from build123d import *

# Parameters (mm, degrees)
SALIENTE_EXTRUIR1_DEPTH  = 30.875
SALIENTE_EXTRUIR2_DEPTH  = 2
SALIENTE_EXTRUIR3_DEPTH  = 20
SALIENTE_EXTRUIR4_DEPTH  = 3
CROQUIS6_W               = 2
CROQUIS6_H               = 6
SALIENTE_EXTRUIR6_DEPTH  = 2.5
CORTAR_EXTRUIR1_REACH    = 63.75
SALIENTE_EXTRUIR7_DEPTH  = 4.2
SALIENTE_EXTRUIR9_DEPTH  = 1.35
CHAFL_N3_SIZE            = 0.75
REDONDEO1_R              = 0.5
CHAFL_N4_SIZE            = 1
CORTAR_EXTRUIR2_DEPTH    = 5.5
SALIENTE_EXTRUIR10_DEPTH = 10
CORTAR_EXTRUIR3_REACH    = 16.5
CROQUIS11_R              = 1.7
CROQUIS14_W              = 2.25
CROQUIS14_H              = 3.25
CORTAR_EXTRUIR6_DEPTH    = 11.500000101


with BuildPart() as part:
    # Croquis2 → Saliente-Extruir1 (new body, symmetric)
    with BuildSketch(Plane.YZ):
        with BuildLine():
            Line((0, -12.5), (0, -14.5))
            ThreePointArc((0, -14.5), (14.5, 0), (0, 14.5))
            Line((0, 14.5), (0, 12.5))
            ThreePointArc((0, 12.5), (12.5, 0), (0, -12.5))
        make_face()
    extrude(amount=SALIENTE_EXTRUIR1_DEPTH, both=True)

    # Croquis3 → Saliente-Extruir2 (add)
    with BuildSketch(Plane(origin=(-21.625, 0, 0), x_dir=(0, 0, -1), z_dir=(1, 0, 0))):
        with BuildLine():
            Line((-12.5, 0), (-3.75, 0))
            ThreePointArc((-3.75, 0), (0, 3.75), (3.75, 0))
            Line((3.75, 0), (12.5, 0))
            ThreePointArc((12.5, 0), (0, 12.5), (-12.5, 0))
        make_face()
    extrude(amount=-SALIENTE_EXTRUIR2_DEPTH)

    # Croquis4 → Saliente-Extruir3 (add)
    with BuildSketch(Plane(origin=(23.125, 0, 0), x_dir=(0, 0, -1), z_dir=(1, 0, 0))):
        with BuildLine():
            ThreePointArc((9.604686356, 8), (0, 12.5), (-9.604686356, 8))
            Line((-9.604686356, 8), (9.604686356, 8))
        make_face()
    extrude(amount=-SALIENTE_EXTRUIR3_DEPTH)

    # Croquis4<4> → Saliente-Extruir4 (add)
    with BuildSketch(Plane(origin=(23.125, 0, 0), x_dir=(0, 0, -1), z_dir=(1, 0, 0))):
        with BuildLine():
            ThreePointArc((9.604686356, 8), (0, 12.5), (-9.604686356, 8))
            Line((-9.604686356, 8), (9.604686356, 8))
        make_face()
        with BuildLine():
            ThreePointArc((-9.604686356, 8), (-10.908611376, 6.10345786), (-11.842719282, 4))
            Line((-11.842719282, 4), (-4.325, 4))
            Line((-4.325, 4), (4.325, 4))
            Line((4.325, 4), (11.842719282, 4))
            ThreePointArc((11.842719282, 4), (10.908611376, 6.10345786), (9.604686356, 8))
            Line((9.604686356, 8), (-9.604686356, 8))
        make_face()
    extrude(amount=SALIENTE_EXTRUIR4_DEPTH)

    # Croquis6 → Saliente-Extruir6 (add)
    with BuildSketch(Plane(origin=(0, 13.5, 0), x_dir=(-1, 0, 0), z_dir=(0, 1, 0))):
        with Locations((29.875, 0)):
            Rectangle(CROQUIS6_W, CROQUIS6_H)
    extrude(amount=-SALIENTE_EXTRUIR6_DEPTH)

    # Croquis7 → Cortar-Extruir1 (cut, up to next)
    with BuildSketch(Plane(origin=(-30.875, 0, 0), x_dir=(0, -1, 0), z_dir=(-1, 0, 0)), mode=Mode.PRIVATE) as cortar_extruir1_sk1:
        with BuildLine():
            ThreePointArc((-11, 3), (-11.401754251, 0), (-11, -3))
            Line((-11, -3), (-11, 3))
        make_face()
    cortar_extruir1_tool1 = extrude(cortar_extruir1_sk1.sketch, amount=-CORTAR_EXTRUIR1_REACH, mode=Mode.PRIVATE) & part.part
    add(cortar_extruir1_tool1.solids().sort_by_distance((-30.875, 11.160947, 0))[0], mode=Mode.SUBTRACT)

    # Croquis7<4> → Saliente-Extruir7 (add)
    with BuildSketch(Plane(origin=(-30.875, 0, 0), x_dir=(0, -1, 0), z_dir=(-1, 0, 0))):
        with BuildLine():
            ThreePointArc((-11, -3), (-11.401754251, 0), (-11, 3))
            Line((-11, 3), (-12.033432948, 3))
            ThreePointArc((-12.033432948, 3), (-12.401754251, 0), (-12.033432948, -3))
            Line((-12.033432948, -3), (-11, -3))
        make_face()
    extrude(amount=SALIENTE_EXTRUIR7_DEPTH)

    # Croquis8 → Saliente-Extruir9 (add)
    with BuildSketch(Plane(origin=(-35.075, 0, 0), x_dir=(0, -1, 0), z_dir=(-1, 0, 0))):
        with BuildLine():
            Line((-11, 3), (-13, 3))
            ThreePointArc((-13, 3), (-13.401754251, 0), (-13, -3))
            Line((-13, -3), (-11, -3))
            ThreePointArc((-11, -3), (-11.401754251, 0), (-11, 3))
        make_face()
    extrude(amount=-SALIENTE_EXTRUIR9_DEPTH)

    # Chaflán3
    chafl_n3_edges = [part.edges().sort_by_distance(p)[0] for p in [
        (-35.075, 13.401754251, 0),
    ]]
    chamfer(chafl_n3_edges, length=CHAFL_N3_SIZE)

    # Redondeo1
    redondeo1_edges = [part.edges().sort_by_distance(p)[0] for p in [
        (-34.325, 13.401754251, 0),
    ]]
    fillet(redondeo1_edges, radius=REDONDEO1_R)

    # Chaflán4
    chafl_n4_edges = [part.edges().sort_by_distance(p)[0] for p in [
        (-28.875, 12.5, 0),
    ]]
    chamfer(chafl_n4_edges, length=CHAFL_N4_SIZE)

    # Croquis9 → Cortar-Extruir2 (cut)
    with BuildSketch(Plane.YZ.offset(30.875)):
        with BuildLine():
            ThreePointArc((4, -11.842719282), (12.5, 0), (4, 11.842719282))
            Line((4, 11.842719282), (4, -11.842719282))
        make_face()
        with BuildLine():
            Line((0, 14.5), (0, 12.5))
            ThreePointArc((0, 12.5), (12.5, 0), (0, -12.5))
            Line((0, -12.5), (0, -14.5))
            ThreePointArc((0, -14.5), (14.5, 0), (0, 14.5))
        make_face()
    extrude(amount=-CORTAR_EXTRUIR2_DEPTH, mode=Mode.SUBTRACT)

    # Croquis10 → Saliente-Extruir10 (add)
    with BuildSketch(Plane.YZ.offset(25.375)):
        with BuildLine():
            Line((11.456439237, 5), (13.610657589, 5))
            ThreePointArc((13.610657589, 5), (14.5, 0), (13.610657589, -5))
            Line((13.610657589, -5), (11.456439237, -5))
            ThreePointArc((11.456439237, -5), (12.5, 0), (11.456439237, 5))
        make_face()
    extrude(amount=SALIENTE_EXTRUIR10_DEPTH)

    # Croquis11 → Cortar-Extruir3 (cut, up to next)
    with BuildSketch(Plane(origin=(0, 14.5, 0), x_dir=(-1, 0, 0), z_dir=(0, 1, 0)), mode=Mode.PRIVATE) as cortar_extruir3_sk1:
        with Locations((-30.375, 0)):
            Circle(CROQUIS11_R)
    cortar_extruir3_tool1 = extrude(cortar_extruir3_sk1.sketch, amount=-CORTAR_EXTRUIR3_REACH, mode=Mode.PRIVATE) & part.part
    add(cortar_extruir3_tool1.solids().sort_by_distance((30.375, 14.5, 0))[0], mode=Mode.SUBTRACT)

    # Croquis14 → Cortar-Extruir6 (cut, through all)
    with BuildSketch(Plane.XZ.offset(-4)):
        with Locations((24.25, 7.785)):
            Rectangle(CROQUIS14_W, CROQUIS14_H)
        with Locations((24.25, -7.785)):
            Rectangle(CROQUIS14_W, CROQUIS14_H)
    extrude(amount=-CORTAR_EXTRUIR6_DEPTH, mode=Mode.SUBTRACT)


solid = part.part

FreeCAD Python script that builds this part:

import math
import FreeCAD as App
import Part
import Sketcher
from FreeCAD import Vector


def edges_at(feature, points):
    """Names of the edges that pass closest to the given points."""
    edges = feature.Shape.Edges
    near = lambda p: min(range(len(edges)), key=lambda i: edges[i].distToShape(Part.Vertex(*p))[0])
    return sorted({f"Edge{near(p) + 1}" for p in points})


def add_polygon(sketch, points):
    """Adds a closed chain of lines whose ends are joined by coincident constraints."""
    first, n = sketch.GeometryCount, len(points)
    for a, b in zip(points, points[1:] + points[:1]):
        sketch.addGeometry(Part.LineSegment(App.Vector(*a, 0), App.Vector(*b, 0)), False)
    for i in range(n):
        sketch.addConstraint(Sketcher.Constraint("Coincident", first + i, 2, first + (i + 1) % n, 1))

doc = App.newDocument("Part")
body = doc.addObject("PartDesign::Body", "Body")

sketch1 = doc.addObject("Sketcher::SketchObject", "Sketch")
body.addObject(sketch1)
sketch1.AttachmentSupport = (doc.YZ_Plane, [""])
sketch1.MapMode = "FlatFace"
sketch1.addGeometry(Part.LineSegment(Vector(0, -12.5, 0), Vector(0, -14.5, 0)), False)
sketch1.addGeometry(Part.ArcOfCircle(Part.Circle(Vector(0, 0, 0), Vector(0, 0, 1), 14.5), math.radians(-90), math.radians(90)), False)
sketch1.addGeometry(Part.LineSegment(Vector(0, 14.5, 0), Vector(0, 12.5, 0)), False)
sketch1.addGeometry(Part.ArcOfCircle(Part.Circle(Vector(0, 0, 0), Vector(0, 0, 1), 12.5), math.radians(-90), math.radians(90)), False)
sketch1.addConstraint(Sketcher.Constraint("Coincident", 0, 2, 1, 1))
sketch1.addConstraint(Sketcher.Constraint("Coincident", 1, 2, 2, 1))
sketch1.addConstraint(Sketcher.Constraint("Coincident", 2, 2, 3, 2))
sketch1.addConstraint(Sketcher.Constraint("Coincident", 3, 1, 0, 1))
sketch1.addConstraint(Sketcher.Constraint("Vertical", 0))
sketch1.addConstraint(Sketcher.Constraint("Vertical", 2))
sketch1.addConstraint(Sketcher.Constraint("Coincident", 1, 3, -1, 1))
sketch1.addConstraint(Sketcher.Constraint("Coincident", 3, 3, -1, 1))
sketch1.addConstraint(Sketcher.Constraint("PointOnObject", 0, 2, -2))
sketch1.addConstraint(Sketcher.Constraint("PointOnObject", 1, 2, -2))
sketch1.addConstraint(Sketcher.Constraint("Radius", 1, 14.5))
sketch1.addConstraint(Sketcher.Constraint("Radius", 3, 12.5))
pad1 = doc.addObject("PartDesign::Pad", "Pad")
body.addObject(pad1)
pad1.Profile = sketch1
pad1.Length = 61.75
pad1.Midplane = True

sketch2 = doc.addObject("Sketcher::SketchObject", "Sketch001")
body.addObject(sketch2)
sketch2.AttachmentSupport = (doc.YZ_Plane, [""])
sketch2.MapMode = "FlatFace"
sketch2.AttachmentOffset = App.Placement(Vector(0, 0, -21.625), App.Rotation())
sketch2.addGeometry(Part.LineSegment(Vector(0, 12.5, 0), Vector(0, 3.8, 0)), False)
sketch2.addGeometry(Part.ArcOfCircle(Part.Circle(Vector(0, 0, 0), Vector(0, 0, 1), 3.8), math.radians(-90), math.radians(90)), False)
sketch2.addGeometry(Part.LineSegment(Vector(0, -3.8, 0), Vector(0, -12.5, 0)), False)
sketch2.addGeometry(Part.ArcOfCircle(Part.Circle(Vector(0, 0, 0), Vector(0, 0, 1), 12.5), math.radians(-90), math.radians(90)), False)
sketch2.addConstraint(Sketcher.Constraint("Coincident", 0, 2, 1, 2))
sketch2.addConstraint(Sketcher.Constraint("Coincident", 1, 1, 2, 1))
sketch2.addConstraint(Sketcher.Constraint("Coincident", 2, 2, 3, 1))
sketch2.addConstraint(Sketcher.Constraint("Coincident", 3, 2, 0, 1))
sketch2.addConstraint(Sketcher.Constraint("Vertical", 0))
sketch2.addConstraint(Sketcher.Constraint("Vertical", 2))
sketch2.addConstraint(Sketcher.Constraint("Coincident", 1, 3, -1, 1))
sketch2.addConstraint(Sketcher.Constraint("Coincident", 3, 3, -1, 1))
sketch2.addConstraint(Sketcher.Constraint("PointOnObject", 0, 2, -2))
sketch2.addConstraint(Sketcher.Constraint("PointOnObject", 1, 1, -2))
sketch2.addConstraint(Sketcher.Constraint("Radius", 3, 12.5))
sketch2.addConstraint(Sketcher.Constraint("Radius", 1, 3.75))
pad2 = doc.addObject("PartDesign::Pad", "Pad001")
body.addObject(pad2)
pad2.Profile = sketch2
pad2.Length = 2
pad2.Reversed = True

sketch3 = doc.addObject("Sketcher::SketchObject", "Sketch002")
body.addObject(sketch3)
sketch3.AttachmentSupport = (doc.YZ_Plane, [""])
sketch3.MapMode = "FlatFace"
sketch3.AttachmentOffset = App.Placement(Vector(0, 0, 23.125), App.Rotation())
sketch3.addGeometry(Part.ArcOfCircle(Part.Circle(Vector(0, 0, 0), Vector(0, 0, 1), 12), math.radians(-50), math.radians(50)), False)
sketch3.addGeometry(Part.LineSegment(Vector(8, 10, 0), Vector(8, -10, 0)), False)
sketch3.addConstraint(Sketcher.Constraint("Coincident", 0, 1, 1, 2))
sketch3.addConstraint(Sketcher.Constraint("Coincident", 1, 1, 0, 2))
sketch3.addConstraint(Sketcher.Constraint("Vertical", 1))
sketch3.addConstraint(Sketcher.Constraint("Coincident", 0, 3, -1, 1))
sketch3.addConstraint(Sketcher.Constraint("Radius", 0, 12.5))
sketch3.addConstraint(Sketcher.Constraint("DistanceX", -1, 1, 0, 1, 8.0))
pad3 = doc.addObject("PartDesign::Pad", "Pad002")
body.addObject(pad3)
pad3.Profile = sketch3
pad3.Length = 20
pad3.Reversed = True

sketch4 = doc.addObject("Sketcher::SketchObject", "Sketch003")
body.addObject(sketch4)
sketch4.AttachmentSupport = (doc.YZ_Plane, [""])
sketch4.MapMode = "FlatFace"
sketch4.AttachmentOffset = App.Placement(Vector(0, 0, 23.125), App.Rotation())
sketch4.addGeometry(Part.ArcOfCircle(Part.Circle(Vector(0, 0, 0), Vector(0, 0, 1), 12.5), math.radians(-50), math.radians(50)), False)
sketch4.addGeometry(Part.ArcOfCircle(Part.Circle(Vector(0, 0, 0), Vector(0, 0, 1), 12.5), math.radians(50), math.radians(71)), False)
sketch4.addGeometry(Part.LineSegment(Vector(4, 11.8, 0), Vector(4, -11.8, 0)), False)
sketch4.addGeometry(Part.ArcOfCircle(Part.Circle(Vector(0, 0, 0), Vector(0, 0, 1), 12.5), math.radians(-71), math.radians(-50)), False)
sketch4.addConstraint(Sketcher.Constraint("Tangent", 0, 2, 1, 1))
sketch4.addConstraint(Sketcher.Constraint("Coincident", 1, 2, 2, 1))
sketch4.addConstraint(Sketcher.Constraint("Coincident", 2, 2, 3, 1))
sketch4.addConstraint(Sketcher.Constraint("Tangent", 3, 2, 0, 1))
sketch4.addConstraint(Sketcher.Constraint("Vertical", 2))
sketch4.addConstraint(Sketcher.Constraint("Coincident", 0, 3, -1, 1))
sketch4.addConstraint(Sketcher.Constraint("Equal", 0, 1))
sketch4.addConstraint(Sketcher.Constraint("Equal", 1, 3))
sketch4.addConstraint(Sketcher.Constraint("Vertical", 0, 2, 3, 2))
sketch4.addConstraint(Sketcher.Constraint("Radius", 0, 12.5))
sketch4.addConstraint(Sketcher.Constraint("DistanceX", -1, 1, 0, 2, 8.0))
sketch4.addConstraint(Sketcher.Constraint("DistanceX", -1, 1, 1, 2, 4.0))
pad4 = doc.addObject("PartDesign::Pad", "Pad003")
body.addObject(pad4)
pad4.Profile = sketch4
pad4.Length = 3

sketch5 = doc.addObject("Sketcher::SketchObject", "Sketch004")
body.addObject(sketch5)
sketch5.AttachmentSupport = (doc.XZ_Plane, [""])
sketch5.MapMode = "FlatFace"
sketch5.AttachmentOffset = App.Placement(Vector(0, 0, -13.5), App.Rotation())
add_polygon(sketch5, [(-28.9, 3), (-28.9, -3), (-30.9, -3), (-30.9, 3)])
sketch5.addConstraint(Sketcher.Constraint("Vertical", 0))
sketch5.addConstraint(Sketcher.Constraint("Horizontal", 1))
sketch5.addConstraint(Sketcher.Constraint("Vertical", 2))
sketch5.addConstraint(Sketcher.Constraint("Horizontal", 3))
sketch5.addConstraint(Sketcher.Constraint("DistanceX", 1, 2, 1, 1, 2.0))
sketch5.addConstraint(Sketcher.Constraint("DistanceY", 0, 2, 0, 1, 6.0))
sketch5.addConstraint(Sketcher.Constraint("DistanceY", 0, 2, -1, 1, 3.0))
sketch5.addConstraint(Sketcher.Constraint("DistanceX", 0, 2, -1, 1, 28.875))
pad5 = doc.addObject("PartDesign::Pad", "Pad004")
body.addObject(pad5)
pad5.Profile = sketch5
pad5.Length = 2.5

sketch6 = doc.addObject("Sketcher::SketchObject", "Sketch005")
body.addObject(sketch6)
sketch6.AttachmentSupport = (doc.YZ_Plane, [""])
sketch6.MapMode = "FlatFace"
sketch6.AttachmentOffset = App.Placement(Vector(0, 0, -30.875), App.Rotation())
sketch6.addGeometry(Part.ArcOfCircle(Part.Circle(Vector(0, 0, 0), Vector(0, 0, 1), 11), math.radians(-15), math.radians(15)), False)
sketch6.addGeometry(Part.LineSegment(Vector(11, -3, 0), Vector(11, 3, 0)), False)
sketch6.addConstraint(Sketcher.Constraint("Coincident", 0, 1, 1, 1))
sketch6.addConstraint(Sketcher.Constraint("Coincident", 1, 2, 0, 2))
sketch6.addConstraint(Sketcher.Constraint("Vertical", 1))
sketch6.addConstraint(Sketcher.Constraint("Coincident", 0, 3, -1, 1))
sketch6.addConstraint(Sketcher.Constraint("DistanceY", 1, 1, 1, 2, 6.0))
sketch6.addConstraint(Sketcher.Constraint("DistanceX", -1, 1, 0, 1, 11.0))
pocket1 = doc.addObject("PartDesign::Pocket", "Pocket")
body.addObject(pocket1)
pocket1.Profile = sketch6
pocket1.Type = "UpToFirst"
pocket1.Reversed = True

sketch7 = doc.addObject("Sketcher::SketchObject", "Sketch006")
body.addObject(sketch7)
sketch7.AttachmentSupport = (doc.YZ_Plane, [""])
sketch7.MapMode = "FlatFace"
sketch7.AttachmentOffset = App.Placement(Vector(0, 0, -30.875), App.Rotation())
sketch7.addGeometry(Part.ArcOfCircle(Part.Circle(Vector(0, 0, 0), Vector(0, 0, 1), 11.4), math.radians(-15), math.radians(15)), False)
sketch7.addGeometry(Part.LineSegment(Vector(11, 3, 0), Vector(12, 3, 0)), False)
sketch7.addGeometry(Part.ArcOfCircle(Part.Circle(Vector(0, 0, 0), Vector(0, 0, 1), 12.4), math.radians(-14), math.radians(14)), False)
sketch7.addGeometry(Part.LineSegment(Vector(12, -3, 0), Vector(11, -3, 0)), False)
sketch7.addConstraint(Sketcher.Constraint("Coincident", 0, 2, 1, 1))
sketch7.addConstraint(Sketcher.Constraint("Coincident", 1, 2, 2, 2))
sketch7.addConstraint(Sketcher.Constraint("Coincident", 2, 1, 3, 1))
sketch7.addConstraint(Sketcher.Constraint("Coincident", 3, 2, 0, 1))
sketch7.addConstraint(Sketcher.Constraint("Horizontal", 1))
sketch7.addConstraint(Sketcher.Constraint("Horizontal", 3))
sketch7.addConstraint(Sketcher.Constraint("Coincident", 0, 3, -1, 1))
sketch7.addConstraint(Sketcher.Constraint("Coincident", 2, 3, -1, 1))
sketch7.addConstraint(Sketcher.Constraint("Vertical", 1, 2, 2, 1))
sketch7.addConstraint(Sketcher.Constraint("DistanceX", -1, 1, 0, 2, 11.0))
sketch7.addConstraint(Sketcher.Constraint("DistanceY", -1, 1, 0, 2, 3.0))
sketch7.addConstraint(Sketcher.Constraint("Radius", 2, 12.401754))
pad6 = doc.addObject("PartDesign::Pad", "Pad005")
body.addObject(pad6)
pad6.Profile = sketch7
pad6.Length = 4.2
pad6.Reversed = True

sketch8 = doc.addObject("Sketcher::SketchObject", "Sketch007")
body.addObject(sketch8)
sketch8.AttachmentSupport = (doc.YZ_Plane, [""])
sketch8.MapMode = "FlatFace"
sketch8.AttachmentOffset = App.Placement(Vector(0, 0, -35.075), App.Rotation())
sketch8.addGeometry(Part.LineSegment(Vector(11, 3, 0), Vector(13, 3, 0)), False)
sketch8.addGeometry(Part.ArcOfCircle(Part.Circle(Vector(2, 0, 0), Vector(0, 0, 1), 11.4), math.radians(-15), math.radians(15)), False)
sketch8.addGeometry(Part.LineSegment(Vector(13, -3, 0), Vector(11, -3, 0)), False)
sketch8.addGeometry(Part.ArcOfCircle(Part.Circle(Vector(0, 0, 0), Vector(0, 0, 1), 11.4), math.radians(-15), math.radians(15)), False)
sketch8.addConstraint(Sketcher.Constraint("Coincident", 0, 2, 1, 2))
sketch8.addConstraint(Sketcher.Constraint("Coincident", 1, 1, 2, 1))
sketch8.addConstraint(Sketcher.Constraint("Coincident", 2, 2, 3, 1))
sketch8.addConstraint(Sketcher.Constraint("Coincident", 3, 2, 0, 1))
sketch8.addConstraint(Sketcher.Constraint("Horizontal", 0))
sketch8.addConstraint(Sketcher.Constraint("Horizontal", 2))
sketch8.addConstraint(Sketcher.Constraint("Coincident", 3, 3, -1, 1))
sketch8.addConstraint(Sketcher.Constraint("Equal", 1, 3))
sketch8.addConstraint(Sketcher.Constraint("Symmetric", 0, 2, 1, 1, -1))
sketch8.addConstraint(Sketcher.Constraint("DistanceX", 0, 1, 0, 2, 2.0))
sketch8.addConstraint(Sketcher.Constraint("DistanceX", -1, 1, 0, 2, 13.0))
sketch8.addConstraint(Sketcher.Constraint("DistanceY", -1, 1, 0, 2, 3.0))
pad7 = doc.addObject("PartDesign::Pad", "Pad006")
body.addObject(pad7)
pad7.Profile = sketch8
pad7.Length = 1.35
doc.recompute()

chamfer = doc.addObject("PartDesign::Chamfer", "Chamfer")
body.addObject(chamfer)
chamfer.Base = (pad7, edges_at(pad7, [(-35.075, 13.402, 0)]))
chamfer.Size = 0.75
doc.recompute()

fillet = doc.addObject("PartDesign::Fillet", "Fillet")
body.addObject(fillet)
fillet.Base = (chamfer, edges_at(chamfer, [(-34.325, 13.402, 0)]))
fillet.Radius = 0.5
doc.recompute()

chamfer2 = doc.addObject("PartDesign::Chamfer", "Chamfer001")
body.addObject(chamfer2)
chamfer2.Base = (fillet, edges_at(fillet, [(-28.875, 12.5, 0)]))
chamfer2.Size = 1

sketch9 = doc.addObject("Sketcher::SketchObject", "Sketch008")
body.addObject(sketch9)
sketch9.AttachmentSupport = (doc.YZ_Plane, [""])
sketch9.MapMode = "FlatFace"
sketch9.AttachmentOffset = App.Placement(Vector(0, 0, 30.875), App.Rotation())
sketch9.addGeometry(Part.LineSegment(Vector(4, 11.8, 0), Vector(4, -11.8, 0)), False)
sketch9.addGeometry(Part.ArcOfCircle(Part.Circle(Vector(0, 0, 0), Vector(0, 0, 1), 12.5), math.radians(-90), math.radians(-71.34)), False)
sketch9.addGeometry(Part.LineSegment(Vector(0, -12.5, 0), Vector(0, -14.5, 0)), False)
sketch9.addGeometry(Part.ArcOfCircle(Part.Circle(Vector(0, 0, 0), Vector(0, 0, 1), 14.5), math.radians(-90), math.radians(90)), False)
sketch9.addGeometry(Part.LineSegment(Vector(0, 14.5, 0), Vector(0, 12.5, 0)), False)
sketch9.addGeometry(Part.ArcOfCircle(Part.Circle(Vector(0, 0, 0), Vector(0, 0, 1), 12.5), math.radians(71.34), math.radians(90)), False)
sketch9.addConstraint(Sketcher.Constraint("Coincident", 0, 2, 1, 2))
sketch9.addConstraint(Sketcher.Constraint("Coincident", 1, 1, 2, 1))
sketch9.addConstraint(Sketcher.Constraint("Coincident", 2, 2, 3, 1))
sketch9.addConstraint(Sketcher.Constraint("Coincident", 3, 2, 4, 1))
sketch9.addConstraint(Sketcher.Constraint("Coincident", 4, 2, 5, 2))
sketch9.addConstraint(Sketcher.Constraint("Coincident", 5, 1, 0, 1))
sketch9.addConstraint(Sketcher.Constraint("Vertical", 0))
sketch9.addConstraint(Sketcher.Constraint("Vertical", 2))
sketch9.addConstraint(Sketcher.Constraint("Vertical", 4))
sketch9.addConstraint(Sketcher.Constraint("Coincident", 1, 3, -1, 1))
sketch9.addConstraint(Sketcher.Constraint("Coincident", 3, 3, -1, 1))
sketch9.addConstraint(Sketcher.Constraint("Coincident", 5, 3, -1, 1))
sketch9.addConstraint(Sketcher.Constraint("Equal", 1, 5))
sketch9.addConstraint(Sketcher.Constraint("PointOnObject", 1, 1, -2))
sketch9.addConstraint(Sketcher.Constraint("PointOnObject", 3, 2, -2))
sketch9.addConstraint(Sketcher.Constraint("Radius", 1, 12.5))
sketch9.addConstraint(Sketcher.Constraint("Radius", 3, 14.5))
sketch9.addConstraint(Sketcher.Constraint("DistanceX", -1, 1, 0, 2, 4.0))
pocket2 = doc.addObject("PartDesign::Pocket", "Pocket001")
body.addObject(pocket2)
pocket2.Profile = sketch9
pocket2.Length = 5.5

sketch10 = doc.addObject("Sketcher::SketchObject", "Sketch009")
body.addObject(sketch10)
sketch10.AttachmentSupport = (doc.YZ_Plane, [""])
sketch10.MapMode = "FlatFace"
sketch10.AttachmentOffset = App.Placement(Vector(0, 0, 25.375), App.Rotation())
sketch10.addGeometry(Part.LineSegment(Vector(13.6, 5, 0), Vector(11.5, 5, 0)), False)
sketch10.addGeometry(Part.ArcOfCircle(Part.Circle(Vector(0, 0, 0), Vector(0, 0, 1), 12.5), math.radians(-24), math.radians(24)), False)
sketch10.addGeometry(Part.LineSegment(Vector(11.5, -5, 0), Vector(13.6, -5, 0)), False)
sketch10.addGeometry(Part.ArcOfCircle(Part.Circle(Vector(0, 0, 0), Vector(0, 0, 1), 14.5), math.radians(-20), math.radians(20)), False)
sketch10.addConstraint(Sketcher.Constraint("Coincident", 0, 2, 1, 2))
sketch10.addConstraint(Sketcher.Constraint("Coincident", 1, 1, 2, 1))
sketch10.addConstraint(Sketcher.Constraint("Coincident", 2, 2, 3, 1))
sketch10.addConstraint(Sketcher.Constraint("Coincident", 3, 2, 0, 1))
sketch10.addConstraint(Sketcher.Constraint("Horizontal", 0))
sketch10.addConstraint(Sketcher.Constraint("Horizontal", 2))
sketch10.addConstraint(Sketcher.Constraint("Coincident", 1, 3, -1, 1))
sketch10.addConstraint(Sketcher.Constraint("Coincident", 3, 3, -1, 1))
sketch10.addConstraint(Sketcher.Constraint("Vertical", 0, 2, 1, 1))
sketch10.addConstraint(Sketcher.Constraint("Radius", 1, 12.5))
sketch10.addConstraint(Sketcher.Constraint("Radius", 3, 14.5))
sketch10.addConstraint(Sketcher.Constraint("DistanceY", -1, 1, 0, 2, 5.0))
pad8 = doc.addObject("PartDesign::Pad", "Pad007")
body.addObject(pad8)
pad8.Profile = sketch10
pad8.Length = 10

sketch11 = doc.addObject("Sketcher::SketchObject", "Sketch010")
body.addObject(sketch11)
sketch11.AttachmentSupport = (doc.XZ_Plane, [""])
sketch11.MapMode = "FlatFace"
sketch11.AttachmentOffset = App.Placement(Vector(0, 0, -14.5), App.Rotation())
sketch11.addGeometry(Part.Circle(Vector(30.4, 0, 0), Vector(0, 0, 1), 1.7), False)
sketch11.addConstraint(Sketcher.Constraint("PointOnObject", 0, 3, -1))
sketch11.addConstraint(Sketcher.Constraint("Diameter", 0, 3.4))
sketch11.addConstraint(Sketcher.Constraint("DistanceX", -1, 1, 0, 3, 30.375))
pocket3 = doc.addObject("PartDesign::Pocket", "Pocket002")
body.addObject(pocket3)
pocket3.Profile = sketch11
pocket3.Type = "UpToFirst"
pocket3.Reversed = True

sketch12 = doc.addObject("Sketcher::SketchObject", "Sketch011")
body.addObject(sketch12)
sketch12.AttachmentSupport = (doc.XZ_Plane, [""])
sketch12.MapMode = "FlatFace"
sketch12.AttachmentOffset = App.Placement(Vector(0, 0, -4), App.Rotation())
add_polygon(sketch12, [(23.1, 9.4), (23.1, 6.2), (25.4, 6.2), (25.4, 9.4)])
add_polygon(sketch12, [(23.1, -6.2), (23.1, -9.4), (25.4, -9.4), (25.4, -6.2)])
sketch12.addConstraint(Sketcher.Constraint("Vertical", 0))
sketch12.addConstraint(Sketcher.Constraint("Horizontal", 1))
sketch12.addConstraint(Sketcher.Constraint("Vertical", 2))
sketch12.addConstraint(Sketcher.Constraint("Horizontal", 3))
sketch12.addConstraint(Sketcher.Constraint("Vertical", 4))
sketch12.addConstraint(Sketcher.Constraint("Horizontal", 5))
sketch12.addConstraint(Sketcher.Constraint("Vertical", 6))
sketch12.addConstraint(Sketcher.Constraint("Horizontal", 7))
sketch12.addConstraint(Sketcher.Constraint("Symmetric", 3, 2, 4, 2, -1))
sketch12.addConstraint(Sketcher.Constraint("Symmetric", 1, 2, 6, 2, -1))
sketch12.addConstraint(Sketcher.Constraint("DistanceX", 1, 1, 1, 2, 2.25))
sketch12.addConstraint(Sketcher.Constraint("DistanceY", 0, 2, 0, 1, 3.25))
sketch12.addConstraint(Sketcher.Constraint("DistanceY", -1, 1, 0, 2, 6.16))
sketch12.addConstraint(Sketcher.Constraint("DistanceX", -1, 1, 0, 2, 23.125))
pocket4 = doc.addObject("PartDesign::Pocket", "Pocket003")
body.addObject(pocket4)
pocket4.Profile = sketch12
pocket4.Type = "ThroughAll"

doc.recompute()
